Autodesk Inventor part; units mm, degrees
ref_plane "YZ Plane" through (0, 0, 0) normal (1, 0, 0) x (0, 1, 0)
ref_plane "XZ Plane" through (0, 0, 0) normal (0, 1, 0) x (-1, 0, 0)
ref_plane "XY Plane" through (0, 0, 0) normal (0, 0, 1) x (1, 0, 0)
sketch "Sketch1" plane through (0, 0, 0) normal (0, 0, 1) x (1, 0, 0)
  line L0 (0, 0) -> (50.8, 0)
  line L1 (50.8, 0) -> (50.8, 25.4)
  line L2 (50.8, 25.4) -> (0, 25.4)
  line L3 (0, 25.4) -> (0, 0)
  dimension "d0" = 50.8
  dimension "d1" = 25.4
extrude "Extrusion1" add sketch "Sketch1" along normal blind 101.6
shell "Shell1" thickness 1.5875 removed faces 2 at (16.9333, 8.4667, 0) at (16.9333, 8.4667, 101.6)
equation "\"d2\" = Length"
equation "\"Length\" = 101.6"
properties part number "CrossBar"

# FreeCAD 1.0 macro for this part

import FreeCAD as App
import Part
import Sketcher
from FreeCAD import Vector
Q = App.Units.Quantity


def faces_at(feature, points):
    """Names of the faces that lie closest to the given points."""
    faces = feature.Shape.Faces
    near = lambda p: min(range(len(faces)), key=lambda i: faces[i].distToShape(Part.Vertex(*p))[0])
    return sorted({f"Face{near(p) + 1}" for p in points})


def add_polygon(sketch, points):
    """Adds a closed chain of lines whose ends are joined by coincident constraints."""
    first, n = sketch.GeometryCount, len(points)
    for a, b in zip(points, points[1:] + points[:1]):
        sketch.addGeometry(Part.LineSegment(App.Vector(*a, 0), App.Vector(*b, 0)), False)
    for i in range(n):
        sketch.addConstraint(Sketcher.Constraint("Coincident", first + i, 2, first + (i + 1) % n, 1))

doc = App.newDocument("Part")
body = doc.addObject("PartDesign::Body", "Body")

sketch1 = doc.addObject("Sketcher::SketchObject", "Sketch")
body.addObject(sketch1)
sketch1.AttachmentSupport = (doc.XY_Plane, [""])
sketch1.MapMode = "FlatFace"
add_polygon(sketch1, [(0, 25), (0, 0), (51, 0), (51, 25)])
sketch1.addConstraint([
    Sketcher.Constraint("Vertical", 0),
    Sketcher.Constraint("Horizontal", 1),
    Sketcher.Constraint("Vertical", 2),
    Sketcher.Constraint("Horizontal", 3),
    Sketcher.Constraint("Coincident", 0, 2, -1, 1),
    Sketcher.Constraint("DistanceX", 1, 1, 1, 2, Q("2 in")),
    Sketcher.Constraint("DistanceY", 0, 2, 0, 1, Q("1 in")),
])
pad1 = doc.addObject("PartDesign::Pad", "Pad")
body.addObject(pad1)
pad1.Profile = sketch1
pad1.Length = Q("4 in")
doc.recompute()

thickness = doc.addObject("PartDesign::Thickness", "Thickness")
body.addObject(thickness)
thickness.Base = (pad1, faces_at(pad1, [(16.933, 8.467, 0), (16.933, 8.467, 101.6)]))
thickness.Value = Q("0.0625 in")
thickness.Reversed = True
thickness.Join = "Intersection"

doc.recompute()
